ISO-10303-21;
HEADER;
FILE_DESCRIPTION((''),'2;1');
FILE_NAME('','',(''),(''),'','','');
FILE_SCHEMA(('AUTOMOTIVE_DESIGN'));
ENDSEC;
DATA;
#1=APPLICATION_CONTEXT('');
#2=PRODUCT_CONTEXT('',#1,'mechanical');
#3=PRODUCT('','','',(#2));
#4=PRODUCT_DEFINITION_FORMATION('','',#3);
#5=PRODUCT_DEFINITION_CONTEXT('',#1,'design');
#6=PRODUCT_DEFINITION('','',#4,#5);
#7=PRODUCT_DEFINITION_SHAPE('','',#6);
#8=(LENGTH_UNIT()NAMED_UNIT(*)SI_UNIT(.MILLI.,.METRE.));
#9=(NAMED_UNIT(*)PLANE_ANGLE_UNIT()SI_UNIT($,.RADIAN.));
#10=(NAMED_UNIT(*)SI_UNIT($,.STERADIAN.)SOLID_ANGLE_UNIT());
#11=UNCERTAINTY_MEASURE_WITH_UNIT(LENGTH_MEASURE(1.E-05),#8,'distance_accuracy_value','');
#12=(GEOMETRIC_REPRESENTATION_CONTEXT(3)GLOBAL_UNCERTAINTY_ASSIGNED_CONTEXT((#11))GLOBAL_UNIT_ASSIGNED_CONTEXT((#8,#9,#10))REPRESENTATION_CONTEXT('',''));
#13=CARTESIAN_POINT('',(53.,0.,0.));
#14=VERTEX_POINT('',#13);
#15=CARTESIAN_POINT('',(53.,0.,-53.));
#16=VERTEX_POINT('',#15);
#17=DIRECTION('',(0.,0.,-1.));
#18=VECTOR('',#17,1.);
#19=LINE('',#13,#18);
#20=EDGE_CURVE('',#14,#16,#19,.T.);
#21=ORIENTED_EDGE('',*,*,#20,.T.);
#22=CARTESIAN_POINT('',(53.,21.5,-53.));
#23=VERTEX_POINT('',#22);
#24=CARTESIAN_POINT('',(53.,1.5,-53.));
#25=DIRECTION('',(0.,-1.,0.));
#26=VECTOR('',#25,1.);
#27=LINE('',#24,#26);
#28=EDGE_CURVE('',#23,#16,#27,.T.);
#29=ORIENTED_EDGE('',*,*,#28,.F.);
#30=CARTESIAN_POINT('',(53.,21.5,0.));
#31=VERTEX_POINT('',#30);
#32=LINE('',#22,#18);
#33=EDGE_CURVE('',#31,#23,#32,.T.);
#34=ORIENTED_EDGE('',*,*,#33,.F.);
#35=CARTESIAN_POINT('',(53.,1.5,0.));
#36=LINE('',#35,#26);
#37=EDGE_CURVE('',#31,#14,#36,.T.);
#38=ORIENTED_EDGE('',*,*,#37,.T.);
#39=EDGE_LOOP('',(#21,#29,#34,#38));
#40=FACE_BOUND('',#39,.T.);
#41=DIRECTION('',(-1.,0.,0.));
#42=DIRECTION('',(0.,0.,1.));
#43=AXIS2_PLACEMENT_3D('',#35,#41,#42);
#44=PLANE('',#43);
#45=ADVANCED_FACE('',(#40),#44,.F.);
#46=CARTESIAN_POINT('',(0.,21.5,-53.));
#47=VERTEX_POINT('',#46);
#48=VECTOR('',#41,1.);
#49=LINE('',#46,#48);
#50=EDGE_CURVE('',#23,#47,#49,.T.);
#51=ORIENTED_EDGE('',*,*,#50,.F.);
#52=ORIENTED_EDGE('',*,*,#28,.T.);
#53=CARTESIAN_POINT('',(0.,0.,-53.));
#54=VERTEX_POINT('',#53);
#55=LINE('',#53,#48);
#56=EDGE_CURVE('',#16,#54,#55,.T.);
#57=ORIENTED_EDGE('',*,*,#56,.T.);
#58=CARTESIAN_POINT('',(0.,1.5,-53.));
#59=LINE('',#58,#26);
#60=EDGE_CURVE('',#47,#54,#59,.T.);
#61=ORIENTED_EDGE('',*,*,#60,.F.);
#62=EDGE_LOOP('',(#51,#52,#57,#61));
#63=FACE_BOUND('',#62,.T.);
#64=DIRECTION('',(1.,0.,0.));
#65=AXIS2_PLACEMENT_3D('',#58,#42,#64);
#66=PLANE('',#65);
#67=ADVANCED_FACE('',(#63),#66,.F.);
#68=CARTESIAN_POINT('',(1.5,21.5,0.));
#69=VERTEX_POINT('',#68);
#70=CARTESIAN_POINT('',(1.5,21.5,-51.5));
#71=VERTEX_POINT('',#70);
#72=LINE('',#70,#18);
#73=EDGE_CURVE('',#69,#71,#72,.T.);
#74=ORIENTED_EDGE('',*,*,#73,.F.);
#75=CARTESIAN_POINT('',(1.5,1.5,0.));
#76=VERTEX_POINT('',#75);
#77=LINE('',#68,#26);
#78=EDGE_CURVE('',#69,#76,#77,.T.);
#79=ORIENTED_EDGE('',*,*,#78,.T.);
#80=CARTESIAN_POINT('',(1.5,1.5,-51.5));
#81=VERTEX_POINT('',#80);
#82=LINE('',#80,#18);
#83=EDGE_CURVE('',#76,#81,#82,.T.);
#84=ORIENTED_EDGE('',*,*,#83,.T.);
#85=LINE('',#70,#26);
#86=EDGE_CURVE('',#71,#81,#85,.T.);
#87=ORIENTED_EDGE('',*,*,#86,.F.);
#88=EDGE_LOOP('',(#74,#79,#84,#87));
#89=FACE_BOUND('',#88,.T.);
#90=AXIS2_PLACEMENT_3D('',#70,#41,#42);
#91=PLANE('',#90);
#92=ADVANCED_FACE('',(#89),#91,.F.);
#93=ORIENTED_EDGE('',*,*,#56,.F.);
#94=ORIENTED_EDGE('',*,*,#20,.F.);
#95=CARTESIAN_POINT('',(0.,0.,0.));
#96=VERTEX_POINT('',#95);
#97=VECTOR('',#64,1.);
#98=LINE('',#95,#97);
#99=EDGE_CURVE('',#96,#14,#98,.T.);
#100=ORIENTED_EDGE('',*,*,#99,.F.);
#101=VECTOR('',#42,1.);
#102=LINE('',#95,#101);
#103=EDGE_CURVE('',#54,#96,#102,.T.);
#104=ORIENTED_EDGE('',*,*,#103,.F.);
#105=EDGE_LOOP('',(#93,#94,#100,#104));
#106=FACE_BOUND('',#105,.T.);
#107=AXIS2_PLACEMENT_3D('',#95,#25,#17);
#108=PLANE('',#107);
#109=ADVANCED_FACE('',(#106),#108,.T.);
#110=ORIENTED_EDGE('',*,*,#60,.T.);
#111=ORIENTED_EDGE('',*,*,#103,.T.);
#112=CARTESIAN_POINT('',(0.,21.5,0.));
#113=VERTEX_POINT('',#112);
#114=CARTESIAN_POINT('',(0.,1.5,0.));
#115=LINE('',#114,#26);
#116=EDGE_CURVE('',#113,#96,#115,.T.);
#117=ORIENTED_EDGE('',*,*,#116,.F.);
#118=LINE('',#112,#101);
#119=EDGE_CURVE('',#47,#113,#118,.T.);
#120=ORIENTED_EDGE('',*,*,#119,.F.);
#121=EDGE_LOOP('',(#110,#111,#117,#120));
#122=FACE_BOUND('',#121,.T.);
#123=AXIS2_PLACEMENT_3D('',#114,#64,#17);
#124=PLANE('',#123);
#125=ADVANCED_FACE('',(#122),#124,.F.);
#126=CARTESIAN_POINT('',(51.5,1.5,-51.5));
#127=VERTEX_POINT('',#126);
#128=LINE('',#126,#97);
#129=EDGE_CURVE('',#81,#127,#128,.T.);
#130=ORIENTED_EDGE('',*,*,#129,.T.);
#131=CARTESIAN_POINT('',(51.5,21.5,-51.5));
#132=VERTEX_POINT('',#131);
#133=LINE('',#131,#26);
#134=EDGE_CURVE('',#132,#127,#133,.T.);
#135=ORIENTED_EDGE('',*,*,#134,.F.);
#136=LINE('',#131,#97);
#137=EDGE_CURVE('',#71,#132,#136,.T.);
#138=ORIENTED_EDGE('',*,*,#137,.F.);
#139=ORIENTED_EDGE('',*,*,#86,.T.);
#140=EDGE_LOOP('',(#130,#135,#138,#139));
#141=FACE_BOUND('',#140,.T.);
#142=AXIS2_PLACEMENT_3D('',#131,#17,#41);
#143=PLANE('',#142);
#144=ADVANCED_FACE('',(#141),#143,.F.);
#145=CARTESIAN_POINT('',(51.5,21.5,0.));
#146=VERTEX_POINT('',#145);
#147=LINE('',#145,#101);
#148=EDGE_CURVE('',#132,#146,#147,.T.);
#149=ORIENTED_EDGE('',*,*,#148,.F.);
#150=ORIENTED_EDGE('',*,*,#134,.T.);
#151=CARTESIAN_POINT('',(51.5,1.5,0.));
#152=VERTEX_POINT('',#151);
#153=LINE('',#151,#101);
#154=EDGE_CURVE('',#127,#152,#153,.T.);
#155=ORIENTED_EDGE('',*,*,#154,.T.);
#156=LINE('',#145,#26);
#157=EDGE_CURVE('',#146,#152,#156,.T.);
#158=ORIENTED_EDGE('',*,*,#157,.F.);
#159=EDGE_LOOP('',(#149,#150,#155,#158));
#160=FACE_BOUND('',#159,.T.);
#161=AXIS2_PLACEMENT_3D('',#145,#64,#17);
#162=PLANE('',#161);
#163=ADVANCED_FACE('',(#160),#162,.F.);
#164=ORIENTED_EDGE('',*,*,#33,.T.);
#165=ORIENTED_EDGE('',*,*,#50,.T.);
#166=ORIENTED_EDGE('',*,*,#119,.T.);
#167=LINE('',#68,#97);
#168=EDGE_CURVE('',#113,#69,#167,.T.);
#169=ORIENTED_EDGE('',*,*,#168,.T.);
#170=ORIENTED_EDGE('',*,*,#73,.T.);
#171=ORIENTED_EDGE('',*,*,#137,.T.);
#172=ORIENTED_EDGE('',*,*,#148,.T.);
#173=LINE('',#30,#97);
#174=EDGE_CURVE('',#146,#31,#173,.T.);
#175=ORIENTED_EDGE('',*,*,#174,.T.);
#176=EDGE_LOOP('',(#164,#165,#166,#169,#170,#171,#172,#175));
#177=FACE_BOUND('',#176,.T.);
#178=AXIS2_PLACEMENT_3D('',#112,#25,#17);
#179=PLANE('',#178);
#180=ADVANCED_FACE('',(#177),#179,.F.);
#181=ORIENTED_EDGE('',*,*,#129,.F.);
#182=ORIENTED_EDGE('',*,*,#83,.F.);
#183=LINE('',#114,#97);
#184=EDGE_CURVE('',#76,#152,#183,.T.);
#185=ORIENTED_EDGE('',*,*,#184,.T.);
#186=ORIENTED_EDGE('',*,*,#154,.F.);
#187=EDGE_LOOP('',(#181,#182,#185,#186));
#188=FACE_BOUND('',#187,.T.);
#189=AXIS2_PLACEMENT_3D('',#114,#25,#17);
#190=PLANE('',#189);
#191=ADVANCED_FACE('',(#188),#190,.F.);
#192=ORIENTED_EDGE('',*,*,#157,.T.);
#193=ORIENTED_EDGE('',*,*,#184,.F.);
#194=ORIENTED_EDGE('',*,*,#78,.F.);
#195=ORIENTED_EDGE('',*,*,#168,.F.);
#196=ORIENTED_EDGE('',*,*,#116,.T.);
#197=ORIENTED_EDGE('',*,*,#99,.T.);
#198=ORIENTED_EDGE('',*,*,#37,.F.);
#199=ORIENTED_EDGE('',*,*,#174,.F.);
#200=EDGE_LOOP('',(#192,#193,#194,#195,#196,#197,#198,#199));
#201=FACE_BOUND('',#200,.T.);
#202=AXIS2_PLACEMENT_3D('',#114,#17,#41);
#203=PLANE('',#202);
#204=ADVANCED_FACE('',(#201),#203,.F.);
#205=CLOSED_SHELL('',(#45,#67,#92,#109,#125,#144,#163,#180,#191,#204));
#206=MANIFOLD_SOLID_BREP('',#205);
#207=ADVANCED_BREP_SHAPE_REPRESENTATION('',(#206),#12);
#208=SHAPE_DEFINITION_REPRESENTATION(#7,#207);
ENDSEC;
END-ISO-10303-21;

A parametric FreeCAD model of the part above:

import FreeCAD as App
import Part
import Sketcher

V = App.Vector

doc = App.newDocument("Part")
body = doc.addObject("PartDesign::Body", "Body")

# Sketch on XZ plane
sketch1 = doc.addObject("Sketcher::SketchObject", "Sketch")
body.addObject(sketch1)
sketch1.AttachmentSupport = (doc.XZ_Plane, [""])
sketch1.MapMode = "FlatFace"
sketch1.addGeometry(Part.LineSegment(V(0, -53, 0), V(0, 0, 0)), False)
sketch1.addGeometry(Part.LineSegment(V(0, 0, 0), V(53, 0, 0)), False)
sketch1.addGeometry(Part.LineSegment(V(53, 0, 0), V(53, -53, 0)), False)
sketch1.addGeometry(Part.LineSegment(V(53, -53, 0), V(0, -53, 0)), False)
sketch1.addConstraint(Sketcher.Constraint("Coincident", 0, 2, 1, 1))
sketch1.addConstraint(Sketcher.Constraint("Coincident", 1, 2, 2, 1))
sketch1.addConstraint(Sketcher.Constraint("Coincident", 2, 2, 3, 1))
sketch1.addConstraint(Sketcher.Constraint("Coincident", 3, 2, 0, 1))
sketch1.addConstraint(Sketcher.Constraint("Vertical", 0))
sketch1.addConstraint(Sketcher.Constraint("Horizontal", 1))
sketch1.addConstraint(Sketcher.Constraint("Vertical", 2))
sketch1.addConstraint(Sketcher.Constraint("Horizontal", 3))
sketch1.addConstraint(Sketcher.Constraint("Coincident", 0, 2, -1, 1))
sketch1.addConstraint(Sketcher.Constraint("Equal", 3, 0))
sketch1.addConstraint(Sketcher.Constraint("DistanceX", 1, 1, 1, 2, 53.0))
pad1 = doc.addObject("PartDesign::Pad", "Pad")
body.addObject(pad1)
pad1.Profile = sketch1
pad1.Length = 1.5
pad1.Reversed = True

# Sketch on XZ plane
sketch2 = doc.addObject("Sketcher::SketchObject", "Sketch001")
body.addObject(sketch2)
sketch2.AttachmentSupport = (doc.XZ_Plane, [""])
sketch2.MapMode = "FlatFace"
sketch2.AttachmentOffset = App.Placement(V(0, 0, -1.5), App.Rotation())
sketch2.addGeometry(Part.LineSegment(V(0, -53, 0), V(0, 0, 0)), False)
sketch2.addGeometry(Part.LineSegment(V(0, 0, 0), V(1.5, 0, 0)), False)
sketch2.addGeometry(Part.LineSegment(V(1.5, 0, 0), V(1.5, -51.5, 0)), False)
sketch2.addGeometry(Part.LineSegment(V(1.5, -51.5, 0), V(51.5, -51.5, 0)), False)
sketch2.addGeometry(Part.LineSegment(V(51.5, -51.5, 0), V(51.5, 0, 0)), False)
sketch2.addGeometry(Part.LineSegment(V(51.5, 0, 0), V(53, 0, 0)), False)
sketch2.addGeometry(Part.LineSegment(V(53, 0, 0), V(53, -53, 0)), False)
sketch2.addGeometry(Part.LineSegment(V(53, -53, 0), V(0, -53, 0)), False)
sketch2.addConstraint(Sketcher.Constraint("Coincident", 0, 2, 1, 1))
sketch2.addConstraint(Sketcher.Constraint("Coincident", 1, 2, 2, 1))
sketch2.addConstraint(Sketcher.Constraint("Coincident", 2, 2, 3, 1))
sketch2.addConstraint(Sketcher.Constraint("Coincident", 3, 2, 4, 1))
sketch2.addConstraint(Sketcher.Constraint("Coincident", 4, 2, 5, 1))
sketch2.addConstraint(Sketcher.Constraint("Coincident", 5, 2, 6, 1))
sketch2.addConstraint(Sketcher.Constraint("Coincident", 6, 2, 7, 1))
sketch2.addConstraint(Sketcher.Constraint("Coincident", 7, 2, 0, 1))
sketch2.addConstraint(Sketcher.Constraint("Vertical", 0))
sketch2.addConstraint(Sketcher.Constraint("Horizontal", 1))
sketch2.addConstraint(Sketcher.Constraint("Vertical", 2))
sketch2.addConstraint(Sketcher.Constraint("Horizontal", 3))
sketch2.addConstraint(Sketcher.Constraint("Vertical", 4))
sketch2.addConstraint(Sketcher.Constraint("Horizontal", 5))
sketch2.addConstraint(Sketcher.Constraint("Vertical", 6))
sketch2.addConstraint(Sketcher.Constraint("Horizontal", 7))
sketch2.addConstraint(Sketcher.Constraint("Coincident", 0, 2, -1, 1))
sketch2.addConstraint(Sketcher.Constraint("PointOnObject", 4, 2, -1))
sketch2.addConstraint(Sketcher.Constraint("Equal", 1, 5))
sketch2.addConstraint(Sketcher.Constraint("Equal", 7, 0))
sketch2.addConstraint(Sketcher.Constraint("DistanceX", 3, 1, 3, 2, 50.0))
sketch2.addConstraint(Sketcher.Constraint("DistanceX", 7, 2, 7, 1, 53.0))
sketch2.addConstraint(Sketcher.Constraint("DistanceY", 2, 2, 2, 1, 51.5))
pad2 = doc.addObject("PartDesign::Pad", "Pad001")
body.addObject(pad2)
pad2.Profile = sketch2
pad2.Length = 20
pad2.Reversed = True

doc.recompute()
